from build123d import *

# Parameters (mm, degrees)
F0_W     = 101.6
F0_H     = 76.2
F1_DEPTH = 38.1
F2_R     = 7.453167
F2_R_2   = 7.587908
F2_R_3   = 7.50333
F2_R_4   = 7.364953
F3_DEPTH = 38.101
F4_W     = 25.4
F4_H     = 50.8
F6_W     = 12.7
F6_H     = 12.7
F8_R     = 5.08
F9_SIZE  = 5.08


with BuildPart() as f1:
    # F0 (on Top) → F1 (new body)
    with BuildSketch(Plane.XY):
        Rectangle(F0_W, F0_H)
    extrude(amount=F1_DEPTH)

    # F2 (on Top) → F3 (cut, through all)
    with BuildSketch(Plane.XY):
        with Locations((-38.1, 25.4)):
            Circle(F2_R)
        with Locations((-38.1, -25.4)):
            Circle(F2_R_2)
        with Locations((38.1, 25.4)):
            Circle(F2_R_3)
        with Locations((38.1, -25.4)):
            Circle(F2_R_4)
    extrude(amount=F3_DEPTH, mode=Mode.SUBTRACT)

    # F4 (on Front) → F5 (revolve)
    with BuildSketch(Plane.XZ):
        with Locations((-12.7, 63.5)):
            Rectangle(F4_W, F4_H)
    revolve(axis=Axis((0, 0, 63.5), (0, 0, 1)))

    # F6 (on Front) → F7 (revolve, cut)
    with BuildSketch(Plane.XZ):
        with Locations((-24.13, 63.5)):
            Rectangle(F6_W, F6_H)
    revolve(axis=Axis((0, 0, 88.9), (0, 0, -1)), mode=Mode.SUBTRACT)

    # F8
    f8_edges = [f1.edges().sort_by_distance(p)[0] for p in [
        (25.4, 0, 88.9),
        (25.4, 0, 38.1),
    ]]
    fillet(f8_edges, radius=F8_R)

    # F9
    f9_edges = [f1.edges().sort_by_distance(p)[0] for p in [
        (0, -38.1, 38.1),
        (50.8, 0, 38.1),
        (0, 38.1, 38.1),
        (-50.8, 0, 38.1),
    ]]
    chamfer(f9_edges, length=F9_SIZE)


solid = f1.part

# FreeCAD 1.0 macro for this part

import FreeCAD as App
import Part
import Sketcher
Q = App.Units.Quantity


def edges_at(feature, points):
    """Names of the edges that pass closest to the given points."""
    edges = feature.Shape.Edges
    near = lambda p: min(range(len(edges)), key=lambda i: edges[i].distToShape(Part.Vertex(*p))[0])
    return sorted({f"Edge{near(p) + 1}" for p in points})


def add_polygon(sketch, points):
    """Adds a closed chain of lines whose ends are joined by coincident constraints."""
    first, n = sketch.GeometryCount, len(points)
    for a, b in zip(points, points[1:] + points[:1]):
        sketch.addGeometry(Part.LineSegment(App.Vector(*a, 0), App.Vector(*b, 0)), False)
    for i in range(n):
        sketch.addConstraint(Sketcher.Constraint("Coincident", first + i, 2, first + (i + 1) % n, 1))

doc = App.newDocument("Part")
body = doc.addObject("PartDesign::Body", "Body")

sketch1 = body.newObject("Sketcher::SketchObject", "Sketch")
sketch1.AttachmentSupport = (doc.getObject("XY_Plane"), [""])
sketch1.MapMode = "FlatFace"
add_polygon(sketch1, [(-50.8, 38.1), (-50.8, -38.1), (50.8, -38.1), (50.8, 38.1)])
sketch1.addConstraint(Sketcher.Constraint("Vertical", 0))
sketch1.addConstraint(Sketcher.Constraint("Horizontal", 1))
sketch1.addConstraint(Sketcher.Constraint("Vertical", 2))
sketch1.addConstraint(Sketcher.Constraint("Horizontal", 3))
sketch1.addConstraint(Sketcher.Constraint("Symmetric", 0, 2, 2, 2, -1, 1))
sketch1.addConstraint(Sketcher.Constraint("DistanceX", 1, 1, 1, 2, Q("4 in")))
sketch1.addConstraint(Sketcher.Constraint("DistanceY", 0, 2, 0, 1, Q("3 in")))
pad1 = body.newObject("PartDesign::Pad", "Pad")
pad1.Profile = sketch1
pad1.Length = Q("1.5 in")

sketch2 = body.newObject("Sketcher::SketchObject", "Sketch001")
sketch2.AttachmentSupport = (doc.getObject("XY_Plane"), [""])
sketch2.MapMode = "FlatFace"
sketch2.addGeometry(Part.Circle(App.Vector(-38.1, 25.4, 0), App.Vector(0, 0, 1), 7.453167), False)
sketch2.addGeometry(Part.Circle(App.Vector(-38.1, -25.4, 0), App.Vector(0, 0, 1), 7.587908), False)
sketch2.addGeometry(Part.Circle(App.Vector(38.1, 25.4, 0), App.Vector(0, 0, 1), 7.50333), False)
sketch2.addGeometry(Part.Circle(App.Vector(38.1, -25.4, 0), App.Vector(0, 0, 1), 7.364953), False)
sketch2.addConstraint(Sketcher.Constraint("Symmetric", 1, 3, 2, 3, -1, 1))
sketch2.addConstraint(Sketcher.Constraint("Symmetric", 0, 3, 3, 3, -1, 1))
sketch2.addConstraint(Sketcher.Constraint("Symmetric", 0, 3, 2, 3, -2))
sketch2.addConstraint(Sketcher.Constraint("DistanceY", -1, 1, 0, 3, Q("1 in")))
sketch2.addConstraint(Sketcher.Constraint("DistanceX", 0, 3, 2, 3, Q("3 in")))
sketch2.addConstraint(Sketcher.Constraint("Diameter", 2, Q("15.00666 mm")))
sketch2.addConstraint(Sketcher.Constraint("Diameter", 0, Q("14.906334 mm")))
sketch2.addConstraint(Sketcher.Constraint("Diameter", 1, Q("15.175816 mm")))
sketch2.addConstraint(Sketcher.Constraint("Diameter", 3, Q("14.729906 mm")))
pocket1 = body.newObject("PartDesign::Pocket", "Pocket")
pocket1.Profile = sketch2
pocket1.Type = "ThroughAll"
pocket1.Reversed = True

sketch3 = body.newObject("Sketcher::SketchObject", "Sketch002")
sketch3.AttachmentSupport = (doc.getObject("XZ_Plane"), [""])
sketch3.MapMode = "FlatFace"
add_polygon(sketch3, [(-25.4, 88.9), (-25.4, 38.1), (0, 38.1), (0, 88.9)])
sketch3.addConstraint(Sketcher.Constraint("Vertical", 0))
sketch3.addConstraint(Sketcher.Constraint("Horizontal", 1))
sketch3.addConstraint(Sketcher.Constraint("Vertical", 2))
sketch3.addConstraint(Sketcher.Constraint("Horizontal", 3))
sketch3.addConstraint(Sketcher.Constraint("PointOnObject", 1, 2, -2))
sketch3.addConstraint(Sketcher.Constraint("DistanceX", 1, 1, 1, 2, Q("1 in")))
sketch3.addConstraint(Sketcher.Constraint("DistanceY", 0, 2, 0, 1, Q("2 in")))
sketch3.addConstraint(Sketcher.Constraint("DistanceY", -1, 1, 0, 2, Q("1.5 in")))
revolution = body.newObject("PartDesign::Revolution", "Revolution")
revolution.Profile = sketch3
revolution.ReferenceAxis = (sketch3, ["V_Axis"])
revolution.Angle = 360

sketch4 = body.newObject("Sketcher::SketchObject", "Sketch003")
sketch4.AttachmentSupport = (doc.getObject("XZ_Plane"), [""])
sketch4.MapMode = "FlatFace"
add_polygon(sketch4, [(-30.48, 69.85), (-30.48, 57.15), (-17.78, 57.15), (-17.78, 69.85)])
sketch4.addConstraint(Sketcher.Constraint("Vertical", 0))
sketch4.addConstraint(Sketcher.Constraint("Horizontal", 1))
sketch4.addConstraint(Sketcher.Constraint("Vertical", 2))
sketch4.addConstraint(Sketcher.Constraint("Horizontal", 3))
sketch4.addConstraint(Sketcher.Constraint("Equal", 3, 0))
sketch4.addConstraint(Sketcher.Constraint("DistanceX", 1, 1, 1, 2, Q("0.5 in")))
sketch4.addConstraint(Sketcher.Constraint("DistanceX", 0, 2, -1, 1, Q("1.2 in")))
sketch4.addConstraint(Sketcher.Constraint("DistanceY", -1, 1, 0, 2, Q("2.25 in")))
groove = body.newObject("PartDesign::Groove", "Groove")
groove.Profile = sketch4
groove.ReferenceAxis = (sketch4, ["V_Axis"])
groove.Angle = 360
doc.recompute()

fillet = body.newObject("PartDesign::Fillet", "Fillet")
fillet.Base = (groove, edges_at(groove, [(25.4, 0, 88.9), (25.4, 0, 38.1)]))
fillet.Radius = Q("0.2 in")
doc.recompute()

chamfer = body.newObject("PartDesign::Chamfer", "Chamfer")
chamfer.Base = (fillet, edges_at(fillet, [
    (0, -38.1, 38.1),
    (50.8, 0, 38.1),
    (0, 38.1, 38.1),
    (-50.8, 0, 38.1),
]))
chamfer.Size = Q("0.2 in")

doc.recompute()
